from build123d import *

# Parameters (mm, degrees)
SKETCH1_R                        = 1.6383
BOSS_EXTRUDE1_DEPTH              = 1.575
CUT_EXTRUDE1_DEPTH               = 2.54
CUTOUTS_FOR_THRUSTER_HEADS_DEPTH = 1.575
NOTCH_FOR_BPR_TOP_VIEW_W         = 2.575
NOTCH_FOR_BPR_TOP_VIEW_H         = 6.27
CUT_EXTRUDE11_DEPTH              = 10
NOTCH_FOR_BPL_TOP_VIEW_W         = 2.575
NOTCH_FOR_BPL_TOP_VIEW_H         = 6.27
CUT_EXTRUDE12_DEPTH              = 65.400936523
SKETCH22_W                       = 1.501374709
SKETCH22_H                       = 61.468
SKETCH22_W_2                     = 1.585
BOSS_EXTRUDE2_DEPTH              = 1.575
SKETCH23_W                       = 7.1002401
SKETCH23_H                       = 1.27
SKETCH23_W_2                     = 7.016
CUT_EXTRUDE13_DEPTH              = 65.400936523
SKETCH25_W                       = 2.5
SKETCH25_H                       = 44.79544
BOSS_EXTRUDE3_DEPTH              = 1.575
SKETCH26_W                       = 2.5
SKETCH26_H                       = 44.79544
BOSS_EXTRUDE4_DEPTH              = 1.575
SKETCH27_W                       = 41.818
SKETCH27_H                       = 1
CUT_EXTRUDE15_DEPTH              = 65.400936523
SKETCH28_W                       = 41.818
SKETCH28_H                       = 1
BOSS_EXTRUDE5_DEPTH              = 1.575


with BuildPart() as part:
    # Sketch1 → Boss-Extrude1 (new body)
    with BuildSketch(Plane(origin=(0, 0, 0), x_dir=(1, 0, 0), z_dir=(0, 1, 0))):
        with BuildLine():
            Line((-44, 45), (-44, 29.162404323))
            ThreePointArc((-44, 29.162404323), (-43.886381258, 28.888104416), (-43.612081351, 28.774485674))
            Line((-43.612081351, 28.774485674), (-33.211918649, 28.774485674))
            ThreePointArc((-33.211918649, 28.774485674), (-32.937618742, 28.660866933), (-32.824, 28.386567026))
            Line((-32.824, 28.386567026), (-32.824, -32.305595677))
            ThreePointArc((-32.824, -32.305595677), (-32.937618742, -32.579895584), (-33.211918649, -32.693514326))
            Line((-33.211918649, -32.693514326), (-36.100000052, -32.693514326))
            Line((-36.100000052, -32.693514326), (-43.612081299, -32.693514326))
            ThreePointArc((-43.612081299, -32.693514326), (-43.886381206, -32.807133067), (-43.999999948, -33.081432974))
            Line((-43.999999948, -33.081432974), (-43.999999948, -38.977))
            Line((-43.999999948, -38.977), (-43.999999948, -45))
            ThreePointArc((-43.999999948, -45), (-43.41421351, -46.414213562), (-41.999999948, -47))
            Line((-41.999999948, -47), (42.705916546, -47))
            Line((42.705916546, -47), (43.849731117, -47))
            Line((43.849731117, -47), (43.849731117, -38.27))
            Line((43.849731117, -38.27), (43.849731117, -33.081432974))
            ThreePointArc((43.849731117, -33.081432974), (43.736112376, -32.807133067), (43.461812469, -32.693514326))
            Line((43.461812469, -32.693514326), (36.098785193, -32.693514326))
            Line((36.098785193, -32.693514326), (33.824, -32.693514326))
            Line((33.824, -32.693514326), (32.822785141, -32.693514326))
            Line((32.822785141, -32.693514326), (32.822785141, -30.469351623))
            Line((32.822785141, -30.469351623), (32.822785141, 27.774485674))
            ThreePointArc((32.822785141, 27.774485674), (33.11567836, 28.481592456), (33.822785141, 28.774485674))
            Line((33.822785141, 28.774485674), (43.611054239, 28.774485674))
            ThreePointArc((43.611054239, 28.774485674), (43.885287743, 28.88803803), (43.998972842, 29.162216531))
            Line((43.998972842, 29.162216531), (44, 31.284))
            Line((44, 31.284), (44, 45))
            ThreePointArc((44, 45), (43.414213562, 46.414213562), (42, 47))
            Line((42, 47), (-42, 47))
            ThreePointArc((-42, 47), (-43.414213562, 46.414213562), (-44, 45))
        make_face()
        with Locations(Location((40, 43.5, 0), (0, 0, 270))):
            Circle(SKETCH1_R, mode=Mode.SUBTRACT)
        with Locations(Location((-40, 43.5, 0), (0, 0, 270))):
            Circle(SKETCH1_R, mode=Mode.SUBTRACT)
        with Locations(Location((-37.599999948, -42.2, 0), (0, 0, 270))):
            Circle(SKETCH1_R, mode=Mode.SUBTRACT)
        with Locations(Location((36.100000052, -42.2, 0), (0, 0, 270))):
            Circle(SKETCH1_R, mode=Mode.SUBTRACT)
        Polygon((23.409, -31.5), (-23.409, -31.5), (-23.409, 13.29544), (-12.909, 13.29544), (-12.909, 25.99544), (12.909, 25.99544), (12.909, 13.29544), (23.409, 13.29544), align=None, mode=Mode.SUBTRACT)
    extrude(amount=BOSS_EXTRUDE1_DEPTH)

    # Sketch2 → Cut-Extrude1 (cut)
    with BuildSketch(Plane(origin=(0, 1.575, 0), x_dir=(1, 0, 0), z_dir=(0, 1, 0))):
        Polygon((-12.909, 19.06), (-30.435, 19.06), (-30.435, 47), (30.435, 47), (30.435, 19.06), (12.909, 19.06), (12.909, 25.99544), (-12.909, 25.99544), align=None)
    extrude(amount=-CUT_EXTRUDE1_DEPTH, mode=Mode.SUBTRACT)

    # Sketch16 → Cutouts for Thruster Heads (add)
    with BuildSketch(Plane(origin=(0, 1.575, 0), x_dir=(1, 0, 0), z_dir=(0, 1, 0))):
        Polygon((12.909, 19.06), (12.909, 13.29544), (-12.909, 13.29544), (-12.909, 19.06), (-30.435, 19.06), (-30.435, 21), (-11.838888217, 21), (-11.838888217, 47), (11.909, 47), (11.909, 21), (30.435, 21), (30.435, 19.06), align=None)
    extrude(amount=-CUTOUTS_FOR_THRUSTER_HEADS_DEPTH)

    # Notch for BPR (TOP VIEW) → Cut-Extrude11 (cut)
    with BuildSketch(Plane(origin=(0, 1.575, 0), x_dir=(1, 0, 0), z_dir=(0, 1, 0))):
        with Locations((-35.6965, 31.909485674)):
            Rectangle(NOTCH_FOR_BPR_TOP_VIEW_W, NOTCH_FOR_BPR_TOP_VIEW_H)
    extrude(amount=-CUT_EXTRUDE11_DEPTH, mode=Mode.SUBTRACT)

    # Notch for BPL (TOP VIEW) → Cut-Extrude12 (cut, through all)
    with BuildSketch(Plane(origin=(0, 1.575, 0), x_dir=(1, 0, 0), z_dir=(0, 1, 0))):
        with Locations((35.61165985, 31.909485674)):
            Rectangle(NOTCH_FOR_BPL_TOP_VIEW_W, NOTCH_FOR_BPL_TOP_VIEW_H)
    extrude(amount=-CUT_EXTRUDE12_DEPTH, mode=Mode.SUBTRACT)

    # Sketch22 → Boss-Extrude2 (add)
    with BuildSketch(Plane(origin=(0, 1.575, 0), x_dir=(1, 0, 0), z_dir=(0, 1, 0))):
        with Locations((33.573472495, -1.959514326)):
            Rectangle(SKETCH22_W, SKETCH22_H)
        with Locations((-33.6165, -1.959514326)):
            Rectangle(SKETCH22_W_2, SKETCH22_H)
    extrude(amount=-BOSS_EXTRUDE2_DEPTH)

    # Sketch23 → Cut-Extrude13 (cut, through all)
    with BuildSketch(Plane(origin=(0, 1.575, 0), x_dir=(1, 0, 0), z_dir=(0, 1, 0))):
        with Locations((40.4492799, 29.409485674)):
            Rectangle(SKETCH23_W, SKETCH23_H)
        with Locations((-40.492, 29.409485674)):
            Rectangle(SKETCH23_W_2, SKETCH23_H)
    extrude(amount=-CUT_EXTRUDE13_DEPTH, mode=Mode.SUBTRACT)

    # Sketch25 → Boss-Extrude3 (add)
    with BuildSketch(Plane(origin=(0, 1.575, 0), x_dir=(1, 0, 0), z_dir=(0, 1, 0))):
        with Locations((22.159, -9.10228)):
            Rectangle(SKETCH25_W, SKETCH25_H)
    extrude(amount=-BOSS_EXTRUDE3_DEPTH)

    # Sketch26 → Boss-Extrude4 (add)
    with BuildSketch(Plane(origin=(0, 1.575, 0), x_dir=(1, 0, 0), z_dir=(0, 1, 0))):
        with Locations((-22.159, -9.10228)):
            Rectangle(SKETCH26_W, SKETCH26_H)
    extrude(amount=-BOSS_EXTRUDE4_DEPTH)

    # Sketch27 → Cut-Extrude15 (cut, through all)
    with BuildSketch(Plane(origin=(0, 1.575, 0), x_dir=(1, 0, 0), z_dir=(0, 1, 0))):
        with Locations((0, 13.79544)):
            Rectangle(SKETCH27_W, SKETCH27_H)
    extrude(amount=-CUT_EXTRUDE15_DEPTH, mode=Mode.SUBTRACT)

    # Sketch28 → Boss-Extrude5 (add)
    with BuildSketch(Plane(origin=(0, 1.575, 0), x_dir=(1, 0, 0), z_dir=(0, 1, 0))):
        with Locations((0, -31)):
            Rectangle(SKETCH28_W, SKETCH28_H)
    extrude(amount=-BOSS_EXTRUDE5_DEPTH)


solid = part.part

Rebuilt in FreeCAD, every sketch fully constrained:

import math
import FreeCAD as App
import Part
import Sketcher

V = App.Vector


def add_polygon(sketch, points):
    """Adds a closed chain of lines whose ends are joined by coincident constraints."""
    first, n = sketch.GeometryCount, len(points)
    for a, b in zip(points, points[1:] + points[:1]):
        sketch.addGeometry(Part.LineSegment(App.Vector(*a, 0), App.Vector(*b, 0)), False)
    for i in range(n):
        sketch.addConstraint(Sketcher.Constraint("Coincident", first + i, 2, first + (i + 1) % n, 1))

doc = App.newDocument("Part")
body = doc.addObject("PartDesign::Body", "Body")

# Sketch on XZ plane
sketch1 = body.newObject("Sketcher::SketchObject", "Sketch")
sketch1.AttachmentSupport = (doc.getObject("XZ_Plane"), [""])
sketch1.MapMode = "FlatFace"
sketch1.addGeometry(Part.LineSegment(V(-44, -45, 0), V(-44, -29.16, 0)), False)  # 0
sketch1.addGeometry(Part.ArcOfCircle(Part.Circle(V(-43.61, -29.16, 0), V(0, 0, 1), 0.39), math.radians(90), math.radians(180)), False)  # 1
sketch1.addGeometry(Part.LineSegment(V(-43.61, -28.77, 0), V(-33.21, -28.77, 0)), False)  # 2
sketch1.addGeometry(Part.ArcOfCircle(Part.Circle(V(-33.21, -28.39, 0), V(0, 0, 1), 0.39), math.radians(-90), math.radians(0)), False)  # 3
sketch1.addGeometry(Part.LineSegment(V(-32.82, -28.39, 0), V(-32.82, 32.31, 0)), False)  # 4
sketch1.addGeometry(Part.ArcOfCircle(Part.Circle(V(-33.21, 32.31, 0), V(0, 0, 1), 0.39), math.radians(0), math.radians(90)), False)  # 5
sketch1.addGeometry(Part.LineSegment(V(-33.21, 32.69, 0), V(-43.61, 32.69, 0)), False)  # 6
sketch1.addGeometry(Part.ArcOfCircle(Part.Circle(V(-43.61, 33.08, 0), V(0, 0, 1), 0.39), math.radians(180), math.radians(270)), False)  # 7
sketch1.addGeometry(Part.LineSegment(V(-44, 33.08, 0), V(-44, 45, 0)), False)  # 8
sketch1.addGeometry(Part.ArcOfCircle(Part.Circle(V(-42, 45, 0), V(0, 0, 1), 2), math.radians(90), math.radians(180)), False)  # 9
sketch1.addGeometry(Part.LineSegment(V(-42, 47, 0), V(43.85, 47, 0)), False)  # 10
sketch1.addGeometry(Part.LineSegment(V(43.85, 47, 0), V(43.85, 33.08, 0)), False)  # 11
sketch1.addGeometry(Part.ArcOfCircle(Part.Circle(V(43.46, 33.08, 0), V(0, 0, 1), 0.39), math.radians(-90), math.radians(0)), False)  # 12
sketch1.addGeometry(Part.LineSegment(V(43.46, 32.69, 0), V(32.82, 32.69, 0)), False)  # 13
sketch1.addGeometry(Part.LineSegment(V(32.82, 32.69, 0), V(32.82, -27.77, 0)), False)  # 14
sketch1.addGeometry(Part.ArcOfCircle(Part.Circle(V(33.82, -27.77, 0), V(0, 0, 1), 1), math.radians(180), math.radians(270)), False)  # 15
sketch1.addGeometry(Part.LineSegment(V(33.82, -28.77, 0), V(43.61, -28.77, 0)), False)  # 16
sketch1.addGeometry(Part.ArcOfCircle(Part.Circle(V(43.61, -29.16, 0), V(0, 0, 1), 0.39), math.radians(0), math.radians(90)), False)  # 17
sketch1.addGeometry(Part.LineSegment(V(44, -29.16, 0), V(44, -31.28, 0)), False)  # 18
sketch1.addGeometry(Part.LineSegment(V(44, -31.28, 0), V(44, -45, 0)), False)  # 19
sketch1.addGeometry(Part.ArcOfCircle(Part.Circle(V(42, -45, 0), V(0, 0, 1), 2), math.radians(-90), math.radians(0)), False)  # 20
sketch1.addGeometry(Part.LineSegment(V(42, -47, 0), V(-42, -47, 0)), False)  # 21
sketch1.addGeometry(Part.ArcOfCircle(Part.Circle(V(-42, -45, 0), V(0, 0, 1), 2), math.radians(-180), math.radians(-90)), False)  # 22
sketch1.addGeometry(Part.Circle(V(-37.6, 42.2, 0), V(0, 0, 1), 1.64), False)  # 23
sketch1.addGeometry(Part.Circle(V(36.1, 42.2, 0), V(0, 0, 1), 1.64), False)  # 24
add_polygon(sketch1, [(23.41, -13.3), (23.41, 31.5), (-23.41, 31.5), (-23.41, -13.3), (-12.91, -13.3), (-12.91, -26), (12.91, -26), (12.91, -13.3)])  # lines 25-32
sketch1.addGeometry(Part.Circle(V(-40, -43.5, 0), V(0, 0, 1), 1.64), False)  # 33
sketch1.addGeometry(Part.Circle(V(40, -43.5, 0), V(0, 0, 1), 1.64), False)  # 34
sketch1.addConstraint([
    Sketcher.Constraint("Tangent", 0, 2, 1, 2),
    Sketcher.Constraint("Tangent", 1, 1, 2, 1),
    Sketcher.Constraint("Tangent", 2, 2, 3, 1),
    Sketcher.Constraint("Tangent", 3, 2, 4, 1),
    Sketcher.Constraint("Tangent", 4, 2, 5, 1),
    Sketcher.Constraint("Tangent", 5, 2, 6, 1),
    Sketcher.Constraint("Tangent", 6, 2, 7, 2),
    Sketcher.Constraint("Tangent", 7, 1, 8, 1),
    Sketcher.Constraint("Tangent", 8, 2, 9, 2),
    Sketcher.Constraint("Tangent", 9, 1, 10, 1),
    Sketcher.Constraint("Coincident", 10, 2, 11, 1),
    Sketcher.Constraint("Tangent", 11, 2, 12, 2),
    Sketcher.Constraint("Tangent", 12, 1, 13, 1),
    Sketcher.Constraint("Coincident", 13, 2, 14, 1),
    Sketcher.Constraint("Tangent", 14, 2, 15, 1),
    Sketcher.Constraint("Tangent", 15, 2, 16, 1),
    Sketcher.Constraint("Tangent", 16, 2, 17, 2),
    Sketcher.Constraint("Tangent", 17, 1, 18, 1),
    Sketcher.Constraint("Coincident", 18, 2, 19, 1),
    Sketcher.Constraint("Tangent", 19, 2, 20, 2),
    Sketcher.Constraint("Tangent", 20, 1, 21, 1),
    Sketcher.Constraint("Tangent", 21, 2, 22, 2),
    Sketcher.Constraint("Tangent", 22, 1, 0, 1),
    Sketcher.Constraint("Vertical", 0),
    Sketcher.Constraint("Horizontal", 2),
    Sketcher.Constraint("Vertical", 4),
    Sketcher.Constraint("Horizontal", 6),
    Sketcher.Constraint("Vertical", 8),
    Sketcher.Constraint("Horizontal", 10),
    Sketcher.Constraint("Vertical", 11),
    Sketcher.Constraint("Horizontal", 13),
    Sketcher.Constraint("Vertical", 14),
    Sketcher.Constraint("Horizontal", 16),
    Sketcher.Constraint("Vertical", 19),
    Sketcher.Constraint("Horizontal", 21),
    Sketcher.Constraint("Vertical", 25),
    Sketcher.Constraint("Horizontal", 26),
    Sketcher.Constraint("Vertical", 27),
    Sketcher.Constraint("Horizontal", 28),
    Sketcher.Constraint("Vertical", 29),
    Sketcher.Constraint("Horizontal", 30),
    Sketcher.Constraint("Vertical", 31),
    Sketcher.Constraint("Horizontal", 32),
    Sketcher.Constraint("Equal", 1, 3),
    Sketcher.Constraint("Equal", 3, 5),
    Sketcher.Constraint("Equal", 5, 7),
    Sketcher.Constraint("Equal", 7, 12),
    Sketcher.Constraint("Equal", 12, 17),
    Sketcher.Constraint("Equal", 9, 20),
    Sketcher.Constraint("Equal", 20, 22),
    Sketcher.Constraint("Equal", 23, 24),
    Sketcher.Constraint("Equal", 24, 33),
    Sketcher.Constraint("Equal", 33, 34),
    Sketcher.Constraint("Symmetric", 9, 3, 20, 3, -1, 1),
    Sketcher.Constraint("Symmetric", 33, 3, 34, 3, -2),
    Sketcher.Constraint("Symmetric", 28, 2, 31, 2, -2),
    Sketcher.Constraint("Horizontal", 7, 3, 12, 3),
    Sketcher.Constraint("Horizontal", 1, 3, 17, 3),
    Sketcher.Constraint("Horizontal", 23, 3, 24, 3),
    Sketcher.Constraint("Vertical", 1, 3, 7, 3),
    Sketcher.Constraint("Equal", 28, 32),
    Sketcher.Constraint("Radius", 9, 2.0),
    Sketcher.Constraint("Radius", 15, 1.0),
    Sketcher.Constraint("DistanceX", 21, 2, 21, 1, 84.0),
    Sketcher.Constraint("DistanceX", 28, 1, 28, 2, 10.5),
    Sketcher.Constraint("DistanceY", 29, 2, 29, 1, 12.7),
    Sketcher.Constraint("DistanceY", -1, 1, 9, 3, 45.0),
    Sketcher.Constraint("DistanceX", 33, 3, -1, 1, 40.0),
    Sketcher.Constraint("Diameter", 23, 3.2766),
    Sketcher.Constraint("DistanceX", 23, 3, -1, 1, 37.6),
    Sketcher.Constraint("DistanceY", -1, 1, 23, 3, 42.2),
    Sketcher.Constraint("DistanceX", -1, 1, 24, 3, 36.1),
    Sketcher.Constraint("DistanceY", 33, 3, -1, 1, 43.5),
    Sketcher.Constraint("DistanceY", -1, 1, 25, 2, 31.5),
    Sketcher.Constraint("DistanceX", 26, 2, 26, 1, 46.818),
    Sketcher.Constraint("DistanceY", 14, 2, 14, 1, 60.468),
    Sketcher.Constraint("DistanceY", 19, 2, 19, 1, 13.716),
    Sketcher.Constraint("Radius", 1, 0.387919),
    Sketcher.Constraint("DistanceX", 3, 2, -1, 1, 32.824),
    Sketcher.Constraint("DistanceX", 10, 1, 10, 2, 85.849731),
    Sketcher.Constraint("DistanceX", 16, 1, 16, 2, 9.788269),
    Sketcher.Constraint("DistanceY", 25, 1, 25, 2, 44.79544),
    Sketcher.Constraint("DistanceX", 13, 2, 13, 1, 10.639027),
    Sketcher.Constraint("DistanceY", 0, 1, 0, 2, 15.837596),
])
pad1 = body.newObject("PartDesign::Pad", "Pad")
pad1.Profile = sketch1
pad1.Length = 1.575
pad1.Reversed = True

# Sketch on XZ plane
sketch2 = body.newObject("Sketcher::SketchObject", "Sketch001")
sketch2.AttachmentSupport = (doc.getObject("XZ_Plane"), [""])
sketch2.MapMode = "FlatFace"
sketch2.AttachmentOffset = App.Placement(V(0, 0, -1.575), App.Rotation())
add_polygon(sketch2, [(-30, -19), (-13, -19), (-13, -26), (13, -26), (13, -19), (30, -19), (30, -47), (-30, -47)])  # lines 0-7
sketch2.addConstraint([
    Sketcher.Constraint("Horizontal", 0),
    Sketcher.Constraint("Vertical", 1),
    Sketcher.Constraint("Horizontal", 2),
    Sketcher.Constraint("Vertical", 3),
    Sketcher.Constraint("Horizontal", 4),
    Sketcher.Constraint("Vertical", 5),
    Sketcher.Constraint("Horizontal", 6),
    Sketcher.Constraint("Vertical", 7),
    Sketcher.Constraint("Symmetric", 0, 2, 3, 2, -2),
    Sketcher.Constraint("Equal", 0, 4),
    Sketcher.Constraint("DistanceY", 5, 2, -1, 1, 47.0),
    Sketcher.Constraint("DistanceX", 6, 2, 6, 1, 60.87),
    Sketcher.Constraint("DistanceY", 5, 2, 5, 1, 27.94),
    Sketcher.Constraint("DistanceX", 0, 1, 0, 2, 17.526),
    Sketcher.Constraint("DistanceY", 1, 2, 1, 1, 6.93544),
])
pocket1 = body.newObject("PartDesign::Pocket", "Pocket")
pocket1.Profile = sketch2
pocket1.Length = 2.54
pocket1.Reversed = True

# Sketch on XZ plane
sketch3 = body.newObject("Sketcher::SketchObject", "Sketch002")
sketch3.AttachmentSupport = (doc.getObject("XZ_Plane"), [""])
sketch3.MapMode = "FlatFace"
sketch3.AttachmentOffset = App.Placement(V(0, 0, -1.575), App.Rotation())
add_polygon(sketch3, [(12.9, -13.3), (12.9, -19.1), (30.4, -19.1), (30.4, -21), (11.9, -21), (11.9, -47), (-11.8, -47), (-11.8, -21), (-30.4, -21), (-30.4, -19.1), (-12.9, -19.1), (-12.9, -13.3)])  # lines 0-11
sketch3.addConstraint([
    Sketcher.Constraint("Vertical", 0),
    Sketcher.Constraint("Horizontal", 1),
    Sketcher.Constraint("Vertical", 2),
    Sketcher.Constraint("Horizontal", 3),
    Sketcher.Constraint("Vertical", 4),
    Sketcher.Constraint("Horizontal", 5),
    Sketcher.Constraint("Vertical", 6),
    Sketcher.Constraint("Horizontal", 7),
    Sketcher.Constraint("Vertical", 8),
    Sketcher.Constraint("Horizontal", 9),
    Sketcher.Constraint("Vertical", 10),
    Sketcher.Constraint("Horizontal", 11),
    Sketcher.Constraint("Symmetric", 2, 2, 7, 2, -2),
    Sketcher.Constraint("Symmetric", 0, 2, 9, 2, -2),
    Sketcher.Constraint("DistanceY", 4, 2, 4, 1, 26.0),
    Sketcher.Constraint("DistanceY", 2, 2, -1, 1, 21.0),
    Sketcher.Constraint("DistanceX", 3, 2, 0, 2, 1.0),
    Sketcher.Constraint("DistanceY", 2, 2, 2, 1, 1.94),
    Sketcher.Constraint("DistanceX", 1, 1, 1, 2, 17.526),
    Sketcher.Constraint("DistanceX", 11, 1, 11, 2, 25.818),
    Sketcher.Constraint("DistanceX", 5, 2, 5, 1, 23.747888),
    Sketcher.Constraint("DistanceY", 0, 2, 0, 1, 5.76456),
])
pad2 = body.newObject("PartDesign::Pad", "Pad001")
pad2.Profile = sketch3
pad2.Length = 1.575

# Sketch on XZ plane
sketch4 = body.newObject("Sketcher::SketchObject", "Sketch003")
sketch4.AttachmentSupport = (doc.getObject("XZ_Plane"), [""])
sketch4.MapMode = "FlatFace"
sketch4.AttachmentOffset = App.Placement(V(0, 0, -1.575), App.Rotation())
add_polygon(sketch4, [(-37, -35), (-37, -28.8), (-34.4, -28.8), (-34.4, -35)])  # lines 0-3
sketch4.addConstraint([
    Sketcher.Constraint("Vertical", 0),
    Sketcher.Constraint("Horizontal", 1),
    Sketcher.Constraint("Vertical", 2),
    Sketcher.Constraint("Horizontal", 3),
    Sketcher.Constraint("DistanceY", 0, 1, 0, 2, 6.27),
    Sketcher.Constraint("DistanceX", 1, 1, 1, 2, 2.575),
    Sketcher.Constraint("DistanceX", 0, 2, -1, 1, 36.984),
    Sketcher.Constraint("DistanceY", 0, 2, -1, 1, 28.774486),
])
pocket2 = body.newObject("PartDesign::Pocket", "Pocket001")
pocket2.Profile = sketch4
pocket2.Length = 10
pocket2.Reversed = True

# Sketch on XZ plane
sketch5 = body.newObject("Sketcher::SketchObject", "Sketch004")
sketch5.AttachmentSupport = (doc.getObject("XZ_Plane"), [""])
sketch5.MapMode = "FlatFace"
sketch5.AttachmentOffset = App.Placement(V(0, 0, -1.575), App.Rotation())
add_polygon(sketch5, [(34.3, -35), (34.3, -28.8), (36.9, -28.8), (36.9, -35)])  # lines 0-3
sketch5.addConstraint([
    Sketcher.Constraint("Vertical", 0),
    Sketcher.Constraint("Horizontal", 1),
    Sketcher.Constraint("Vertical", 2),
    Sketcher.Constraint("Horizontal", 3),
    Sketcher.Constraint("DistanceY", 0, 1, 0, 2, 6.27),
    Sketcher.Constraint("DistanceX", 1, 1, 1, 2, 2.575),
    Sketcher.Constraint("DistanceX", -1, 1, 0, 2, 34.32416),
    Sketcher.Constraint("DistanceY", 0, 2, -1, 1, 28.774486),
])
pocket3 = body.newObject("PartDesign::Pocket", "Pocket002")
pocket3.Profile = sketch5
pocket3.Type = "ThroughAll"
pocket3.Reversed = True

# Sketch on XZ plane
sketch6 = body.newObject("Sketcher::SketchObject", "Sketch005")
sketch6.AttachmentSupport = (doc.getObject("XZ_Plane"), [""])
sketch6.MapMode = "FlatFace"
sketch6.AttachmentOffset = App.Placement(V(0, 0, -1.575), App.Rotation())
add_polygon(sketch6, [(32.8, -28.8), (32.8, 32.7), (34.3, 32.7), (34.3, -28.8)])  # lines 0-3
add_polygon(sketch6, [(-34.4, -28.8), (-34.4, 32.7), (-32.8, 32.7), (-32.8, -28.8)])  # lines 4-7
sketch6.addConstraint([
    Sketcher.Constraint("Vertical", 0),
    Sketcher.Constraint("Horizontal", 1),
    Sketcher.Constraint("Vertical", 2),
    Sketcher.Constraint("Horizontal", 3),
    Sketcher.Constraint("Vertical", 4),
    Sketcher.Constraint("Horizontal", 5),
    Sketcher.Constraint("Vertical", 6),
    Sketcher.Constraint("Horizontal", 7),
    Sketcher.Constraint("Horizontal", 1, 2, 4, 2),
    Sketcher.Constraint("Horizontal", 3, 2, 6, 2),
    Sketcher.Constraint("DistanceX", 5, 1, 5, 2, 1.585),
    Sketcher.Constraint("DistanceY", 0, 1, 0, 2, 61.468),
    Sketcher.Constraint("DistanceX", 4, 2, -1, 1, 34.409),
    Sketcher.Constraint("DistanceX", 1, 1, 1, 2, 1.501375),
    Sketcher.Constraint("DistanceX", -1, 1, 1, 2, 34.32416),
    Sketcher.Constraint("DistanceY", -1, 1, 0, 2, 32.693514),
])
pad3 = body.newObject("PartDesign::Pad", "Pad002")
pad3.Profile = sketch6
pad3.Length = 1.575

# Sketch on XZ plane
sketch7 = body.newObject("Sketcher::SketchObject", "Sketch006")
sketch7.AttachmentSupport = (doc.getObject("XZ_Plane"), [""])
sketch7.MapMode = "FlatFace"
sketch7.AttachmentOffset = App.Placement(V(0, 0, -1.575), App.Rotation())
add_polygon(sketch7, [(36.9, -30), (36.9, -28.8), (44, -28.8), (44, -30)])  # lines 0-3
add_polygon(sketch7, [(-44, -30), (-44, -28.8), (-37, -28.8), (-37, -30)])  # lines 4-7
sketch7.addConstraint([
    Sketcher.Constraint("Vertical", 0),
    Sketcher.Constraint("Horizontal", 1),
    Sketcher.Constraint("Vertical", 2),
    Sketcher.Constraint("Horizontal", 3),
    Sketcher.Constraint("Vertical", 4),
    Sketcher.Constraint("Horizontal", 5),
    Sketcher.Constraint("Vertical", 6),
    Sketcher.Constraint("Horizontal", 7),
    Sketcher.Constraint("Horizontal", 1, 2, 4, 2),
    Sketcher.Constraint("Horizontal", 3, 2, 6, 2),
    Sketcher.Constraint("DistanceX", 4, 2, -1, 1, 44.0),
    Sketcher.Constraint("DistanceY", 0, 1, 0, 2, 1.27),
    Sketcher.Constraint("DistanceX", 5, 1, 5, 2, 7.016),
    Sketcher.Constraint("DistanceX", 1, 1, 1, 2, 7.10024),
    Sketcher.Constraint("DistanceX", -1, 1, 1, 2, 43.9994),
    Sketcher.Constraint("DistanceY", 0, 2, -1, 1, 28.774486),
])
pocket4 = body.newObject("PartDesign::Pocket", "Pocket003")
pocket4.Profile = sketch7
pocket4.Type = "ThroughAll"
pocket4.Reversed = True

# Sketch on XZ plane
sketch8 = body.newObject("Sketcher::SketchObject", "Sketch007")
sketch8.AttachmentSupport = (doc.getObject("XZ_Plane"), [""])
sketch8.MapMode = "FlatFace"
sketch8.AttachmentOffset = App.Placement(V(0, 0, -1.575), App.Rotation())
add_polygon(sketch8, [(20.9, -13.3), (20.9, 31.5), (23.4, 31.5), (23.4, -13.3)])  # lines 0-3
sketch8.addConstraint([
    Sketcher.Constraint("Vertical", 0),
    Sketcher.Constraint("Horizontal", 1),
    Sketcher.Constraint("Vertical", 2),
    Sketcher.Constraint("Horizontal", 3),
    Sketcher.Constraint("DistanceX", 1, 1, 1, 2, 2.5),
    Sketcher.Constraint("DistanceY", -1, 1, 0, 2, 31.5),
    Sketcher.Constraint("DistanceX", -1, 1, 0, 2, 20.909),
    Sketcher.Constraint("DistanceY", 0, 1, 0, 2, 44.79544),
])
pad4 = body.newObject("PartDesign::Pad", "Pad003")
pad4.Profile = sketch8
pad4.Length = 1.575

# Sketch on XZ plane
sketch9 = body.newObject("Sketcher::SketchObject", "Sketch008")
sketch9.AttachmentSupport = (doc.getObject("XZ_Plane"), [""])
sketch9.MapMode = "FlatFace"
sketch9.AttachmentOffset = App.Placement(V(0, 0, -1.575), App.Rotation())
add_polygon(sketch9, [(-23.4, -13.3), (-23.4, 31.5), (-20.9, 31.5), (-20.9, -13.3)])  # lines 0-3
sketch9.addConstraint([
    Sketcher.Constraint("Vertical", 0),
    Sketcher.Constraint("Horizontal", 1),
    Sketcher.Constraint("Vertical", 2),
    Sketcher.Constraint("Horizontal", 3),
    Sketcher.Constraint("DistanceX", 1, 1, 1, 2, 2.5),
    Sketcher.Constraint("DistanceY", -1, 1, 0, 2, 31.5),
    Sketcher.Constraint("DistanceX", 0, 2, -1, 1, 23.409),
    Sketcher.Constraint("DistanceY", 0, 1, 0, 2, 44.79544),
])
pad5 = body.newObject("PartDesign::Pad", "Pad004")
pad5.Profile = sketch9
pad5.Length = 1.575

# Sketch on XZ plane
sketch10 = body.newObject("Sketcher::SketchObject", "Sketch009")
sketch10.AttachmentSupport = (doc.getObject("XZ_Plane"), [""])
sketch10.MapMode = "FlatFace"
sketch10.AttachmentOffset = App.Placement(V(0, 0, -1.575), App.Rotation())
add_polygon(sketch10, [(-20.9, -14.3), (-20.9, -13.3), (20.9, -13.3), (20.9, -14.3)])  # lines 0-3
sketch10.addConstraint([
    Sketcher.Constraint("Vertical", 0),
    Sketcher.Constraint("Horizontal", 1),
    Sketcher.Constraint("Vertical", 2),
    Sketcher.Constraint("Horizontal", 3),
    Sketcher.Constraint("DistanceY", 0, 1, 0, 2, 1.0),
    Sketcher.Constraint("DistanceX", 1, 1, 1, 2, 41.818),
    Sketcher.Constraint("DistanceX", 0, 2, -1, 1, 20.909),
    Sketcher.Constraint("DistanceY", 0, 2, -1, 1, 13.29544),
])
pocket5 = body.newObject("PartDesign::Pocket", "Pocket004")
pocket5.Profile = sketch10
pocket5.Type = "ThroughAll"
pocket5.Reversed = True

# Sketch on XZ plane
sketch11 = body.newObject("Sketcher::SketchObject", "Sketch010")
sketch11.AttachmentSupport = (doc.getObject("XZ_Plane"), [""])
sketch11.MapMode = "FlatFace"
sketch11.AttachmentOffset = App.Placement(V(0, 0, -1.575), App.Rotation())
add_polygon(sketch11, [(-20.9, 30.5), (-20.9, 31.5), (20.9, 31.5), (20.9, 30.5)])  # lines 0-3
sketch11.addConstraint([
    Sketcher.Constraint("Vertical", 0),
    Sketcher.Constraint("Horizontal", 1),
    Sketcher.Constraint("Vertical", 2),
    Sketcher.Constraint("Horizontal", 3),
    Sketcher.Constraint("DistanceY", 0, 1, 0, 2, 1.0),
    Sketcher.Constraint("DistanceY", -1, 1, 0, 2, 31.5),
    Sketcher.Constraint("DistanceX", 1, 1, 1, 2, 41.818),
    Sketcher.Constraint("DistanceX", 0, 2, -1, 1, 20.909),
])
pad6 = body.newObject("PartDesign::Pad", "Pad005")
pad6.Profile = sketch11
pad6.Length = 1.575

doc.recompute()
